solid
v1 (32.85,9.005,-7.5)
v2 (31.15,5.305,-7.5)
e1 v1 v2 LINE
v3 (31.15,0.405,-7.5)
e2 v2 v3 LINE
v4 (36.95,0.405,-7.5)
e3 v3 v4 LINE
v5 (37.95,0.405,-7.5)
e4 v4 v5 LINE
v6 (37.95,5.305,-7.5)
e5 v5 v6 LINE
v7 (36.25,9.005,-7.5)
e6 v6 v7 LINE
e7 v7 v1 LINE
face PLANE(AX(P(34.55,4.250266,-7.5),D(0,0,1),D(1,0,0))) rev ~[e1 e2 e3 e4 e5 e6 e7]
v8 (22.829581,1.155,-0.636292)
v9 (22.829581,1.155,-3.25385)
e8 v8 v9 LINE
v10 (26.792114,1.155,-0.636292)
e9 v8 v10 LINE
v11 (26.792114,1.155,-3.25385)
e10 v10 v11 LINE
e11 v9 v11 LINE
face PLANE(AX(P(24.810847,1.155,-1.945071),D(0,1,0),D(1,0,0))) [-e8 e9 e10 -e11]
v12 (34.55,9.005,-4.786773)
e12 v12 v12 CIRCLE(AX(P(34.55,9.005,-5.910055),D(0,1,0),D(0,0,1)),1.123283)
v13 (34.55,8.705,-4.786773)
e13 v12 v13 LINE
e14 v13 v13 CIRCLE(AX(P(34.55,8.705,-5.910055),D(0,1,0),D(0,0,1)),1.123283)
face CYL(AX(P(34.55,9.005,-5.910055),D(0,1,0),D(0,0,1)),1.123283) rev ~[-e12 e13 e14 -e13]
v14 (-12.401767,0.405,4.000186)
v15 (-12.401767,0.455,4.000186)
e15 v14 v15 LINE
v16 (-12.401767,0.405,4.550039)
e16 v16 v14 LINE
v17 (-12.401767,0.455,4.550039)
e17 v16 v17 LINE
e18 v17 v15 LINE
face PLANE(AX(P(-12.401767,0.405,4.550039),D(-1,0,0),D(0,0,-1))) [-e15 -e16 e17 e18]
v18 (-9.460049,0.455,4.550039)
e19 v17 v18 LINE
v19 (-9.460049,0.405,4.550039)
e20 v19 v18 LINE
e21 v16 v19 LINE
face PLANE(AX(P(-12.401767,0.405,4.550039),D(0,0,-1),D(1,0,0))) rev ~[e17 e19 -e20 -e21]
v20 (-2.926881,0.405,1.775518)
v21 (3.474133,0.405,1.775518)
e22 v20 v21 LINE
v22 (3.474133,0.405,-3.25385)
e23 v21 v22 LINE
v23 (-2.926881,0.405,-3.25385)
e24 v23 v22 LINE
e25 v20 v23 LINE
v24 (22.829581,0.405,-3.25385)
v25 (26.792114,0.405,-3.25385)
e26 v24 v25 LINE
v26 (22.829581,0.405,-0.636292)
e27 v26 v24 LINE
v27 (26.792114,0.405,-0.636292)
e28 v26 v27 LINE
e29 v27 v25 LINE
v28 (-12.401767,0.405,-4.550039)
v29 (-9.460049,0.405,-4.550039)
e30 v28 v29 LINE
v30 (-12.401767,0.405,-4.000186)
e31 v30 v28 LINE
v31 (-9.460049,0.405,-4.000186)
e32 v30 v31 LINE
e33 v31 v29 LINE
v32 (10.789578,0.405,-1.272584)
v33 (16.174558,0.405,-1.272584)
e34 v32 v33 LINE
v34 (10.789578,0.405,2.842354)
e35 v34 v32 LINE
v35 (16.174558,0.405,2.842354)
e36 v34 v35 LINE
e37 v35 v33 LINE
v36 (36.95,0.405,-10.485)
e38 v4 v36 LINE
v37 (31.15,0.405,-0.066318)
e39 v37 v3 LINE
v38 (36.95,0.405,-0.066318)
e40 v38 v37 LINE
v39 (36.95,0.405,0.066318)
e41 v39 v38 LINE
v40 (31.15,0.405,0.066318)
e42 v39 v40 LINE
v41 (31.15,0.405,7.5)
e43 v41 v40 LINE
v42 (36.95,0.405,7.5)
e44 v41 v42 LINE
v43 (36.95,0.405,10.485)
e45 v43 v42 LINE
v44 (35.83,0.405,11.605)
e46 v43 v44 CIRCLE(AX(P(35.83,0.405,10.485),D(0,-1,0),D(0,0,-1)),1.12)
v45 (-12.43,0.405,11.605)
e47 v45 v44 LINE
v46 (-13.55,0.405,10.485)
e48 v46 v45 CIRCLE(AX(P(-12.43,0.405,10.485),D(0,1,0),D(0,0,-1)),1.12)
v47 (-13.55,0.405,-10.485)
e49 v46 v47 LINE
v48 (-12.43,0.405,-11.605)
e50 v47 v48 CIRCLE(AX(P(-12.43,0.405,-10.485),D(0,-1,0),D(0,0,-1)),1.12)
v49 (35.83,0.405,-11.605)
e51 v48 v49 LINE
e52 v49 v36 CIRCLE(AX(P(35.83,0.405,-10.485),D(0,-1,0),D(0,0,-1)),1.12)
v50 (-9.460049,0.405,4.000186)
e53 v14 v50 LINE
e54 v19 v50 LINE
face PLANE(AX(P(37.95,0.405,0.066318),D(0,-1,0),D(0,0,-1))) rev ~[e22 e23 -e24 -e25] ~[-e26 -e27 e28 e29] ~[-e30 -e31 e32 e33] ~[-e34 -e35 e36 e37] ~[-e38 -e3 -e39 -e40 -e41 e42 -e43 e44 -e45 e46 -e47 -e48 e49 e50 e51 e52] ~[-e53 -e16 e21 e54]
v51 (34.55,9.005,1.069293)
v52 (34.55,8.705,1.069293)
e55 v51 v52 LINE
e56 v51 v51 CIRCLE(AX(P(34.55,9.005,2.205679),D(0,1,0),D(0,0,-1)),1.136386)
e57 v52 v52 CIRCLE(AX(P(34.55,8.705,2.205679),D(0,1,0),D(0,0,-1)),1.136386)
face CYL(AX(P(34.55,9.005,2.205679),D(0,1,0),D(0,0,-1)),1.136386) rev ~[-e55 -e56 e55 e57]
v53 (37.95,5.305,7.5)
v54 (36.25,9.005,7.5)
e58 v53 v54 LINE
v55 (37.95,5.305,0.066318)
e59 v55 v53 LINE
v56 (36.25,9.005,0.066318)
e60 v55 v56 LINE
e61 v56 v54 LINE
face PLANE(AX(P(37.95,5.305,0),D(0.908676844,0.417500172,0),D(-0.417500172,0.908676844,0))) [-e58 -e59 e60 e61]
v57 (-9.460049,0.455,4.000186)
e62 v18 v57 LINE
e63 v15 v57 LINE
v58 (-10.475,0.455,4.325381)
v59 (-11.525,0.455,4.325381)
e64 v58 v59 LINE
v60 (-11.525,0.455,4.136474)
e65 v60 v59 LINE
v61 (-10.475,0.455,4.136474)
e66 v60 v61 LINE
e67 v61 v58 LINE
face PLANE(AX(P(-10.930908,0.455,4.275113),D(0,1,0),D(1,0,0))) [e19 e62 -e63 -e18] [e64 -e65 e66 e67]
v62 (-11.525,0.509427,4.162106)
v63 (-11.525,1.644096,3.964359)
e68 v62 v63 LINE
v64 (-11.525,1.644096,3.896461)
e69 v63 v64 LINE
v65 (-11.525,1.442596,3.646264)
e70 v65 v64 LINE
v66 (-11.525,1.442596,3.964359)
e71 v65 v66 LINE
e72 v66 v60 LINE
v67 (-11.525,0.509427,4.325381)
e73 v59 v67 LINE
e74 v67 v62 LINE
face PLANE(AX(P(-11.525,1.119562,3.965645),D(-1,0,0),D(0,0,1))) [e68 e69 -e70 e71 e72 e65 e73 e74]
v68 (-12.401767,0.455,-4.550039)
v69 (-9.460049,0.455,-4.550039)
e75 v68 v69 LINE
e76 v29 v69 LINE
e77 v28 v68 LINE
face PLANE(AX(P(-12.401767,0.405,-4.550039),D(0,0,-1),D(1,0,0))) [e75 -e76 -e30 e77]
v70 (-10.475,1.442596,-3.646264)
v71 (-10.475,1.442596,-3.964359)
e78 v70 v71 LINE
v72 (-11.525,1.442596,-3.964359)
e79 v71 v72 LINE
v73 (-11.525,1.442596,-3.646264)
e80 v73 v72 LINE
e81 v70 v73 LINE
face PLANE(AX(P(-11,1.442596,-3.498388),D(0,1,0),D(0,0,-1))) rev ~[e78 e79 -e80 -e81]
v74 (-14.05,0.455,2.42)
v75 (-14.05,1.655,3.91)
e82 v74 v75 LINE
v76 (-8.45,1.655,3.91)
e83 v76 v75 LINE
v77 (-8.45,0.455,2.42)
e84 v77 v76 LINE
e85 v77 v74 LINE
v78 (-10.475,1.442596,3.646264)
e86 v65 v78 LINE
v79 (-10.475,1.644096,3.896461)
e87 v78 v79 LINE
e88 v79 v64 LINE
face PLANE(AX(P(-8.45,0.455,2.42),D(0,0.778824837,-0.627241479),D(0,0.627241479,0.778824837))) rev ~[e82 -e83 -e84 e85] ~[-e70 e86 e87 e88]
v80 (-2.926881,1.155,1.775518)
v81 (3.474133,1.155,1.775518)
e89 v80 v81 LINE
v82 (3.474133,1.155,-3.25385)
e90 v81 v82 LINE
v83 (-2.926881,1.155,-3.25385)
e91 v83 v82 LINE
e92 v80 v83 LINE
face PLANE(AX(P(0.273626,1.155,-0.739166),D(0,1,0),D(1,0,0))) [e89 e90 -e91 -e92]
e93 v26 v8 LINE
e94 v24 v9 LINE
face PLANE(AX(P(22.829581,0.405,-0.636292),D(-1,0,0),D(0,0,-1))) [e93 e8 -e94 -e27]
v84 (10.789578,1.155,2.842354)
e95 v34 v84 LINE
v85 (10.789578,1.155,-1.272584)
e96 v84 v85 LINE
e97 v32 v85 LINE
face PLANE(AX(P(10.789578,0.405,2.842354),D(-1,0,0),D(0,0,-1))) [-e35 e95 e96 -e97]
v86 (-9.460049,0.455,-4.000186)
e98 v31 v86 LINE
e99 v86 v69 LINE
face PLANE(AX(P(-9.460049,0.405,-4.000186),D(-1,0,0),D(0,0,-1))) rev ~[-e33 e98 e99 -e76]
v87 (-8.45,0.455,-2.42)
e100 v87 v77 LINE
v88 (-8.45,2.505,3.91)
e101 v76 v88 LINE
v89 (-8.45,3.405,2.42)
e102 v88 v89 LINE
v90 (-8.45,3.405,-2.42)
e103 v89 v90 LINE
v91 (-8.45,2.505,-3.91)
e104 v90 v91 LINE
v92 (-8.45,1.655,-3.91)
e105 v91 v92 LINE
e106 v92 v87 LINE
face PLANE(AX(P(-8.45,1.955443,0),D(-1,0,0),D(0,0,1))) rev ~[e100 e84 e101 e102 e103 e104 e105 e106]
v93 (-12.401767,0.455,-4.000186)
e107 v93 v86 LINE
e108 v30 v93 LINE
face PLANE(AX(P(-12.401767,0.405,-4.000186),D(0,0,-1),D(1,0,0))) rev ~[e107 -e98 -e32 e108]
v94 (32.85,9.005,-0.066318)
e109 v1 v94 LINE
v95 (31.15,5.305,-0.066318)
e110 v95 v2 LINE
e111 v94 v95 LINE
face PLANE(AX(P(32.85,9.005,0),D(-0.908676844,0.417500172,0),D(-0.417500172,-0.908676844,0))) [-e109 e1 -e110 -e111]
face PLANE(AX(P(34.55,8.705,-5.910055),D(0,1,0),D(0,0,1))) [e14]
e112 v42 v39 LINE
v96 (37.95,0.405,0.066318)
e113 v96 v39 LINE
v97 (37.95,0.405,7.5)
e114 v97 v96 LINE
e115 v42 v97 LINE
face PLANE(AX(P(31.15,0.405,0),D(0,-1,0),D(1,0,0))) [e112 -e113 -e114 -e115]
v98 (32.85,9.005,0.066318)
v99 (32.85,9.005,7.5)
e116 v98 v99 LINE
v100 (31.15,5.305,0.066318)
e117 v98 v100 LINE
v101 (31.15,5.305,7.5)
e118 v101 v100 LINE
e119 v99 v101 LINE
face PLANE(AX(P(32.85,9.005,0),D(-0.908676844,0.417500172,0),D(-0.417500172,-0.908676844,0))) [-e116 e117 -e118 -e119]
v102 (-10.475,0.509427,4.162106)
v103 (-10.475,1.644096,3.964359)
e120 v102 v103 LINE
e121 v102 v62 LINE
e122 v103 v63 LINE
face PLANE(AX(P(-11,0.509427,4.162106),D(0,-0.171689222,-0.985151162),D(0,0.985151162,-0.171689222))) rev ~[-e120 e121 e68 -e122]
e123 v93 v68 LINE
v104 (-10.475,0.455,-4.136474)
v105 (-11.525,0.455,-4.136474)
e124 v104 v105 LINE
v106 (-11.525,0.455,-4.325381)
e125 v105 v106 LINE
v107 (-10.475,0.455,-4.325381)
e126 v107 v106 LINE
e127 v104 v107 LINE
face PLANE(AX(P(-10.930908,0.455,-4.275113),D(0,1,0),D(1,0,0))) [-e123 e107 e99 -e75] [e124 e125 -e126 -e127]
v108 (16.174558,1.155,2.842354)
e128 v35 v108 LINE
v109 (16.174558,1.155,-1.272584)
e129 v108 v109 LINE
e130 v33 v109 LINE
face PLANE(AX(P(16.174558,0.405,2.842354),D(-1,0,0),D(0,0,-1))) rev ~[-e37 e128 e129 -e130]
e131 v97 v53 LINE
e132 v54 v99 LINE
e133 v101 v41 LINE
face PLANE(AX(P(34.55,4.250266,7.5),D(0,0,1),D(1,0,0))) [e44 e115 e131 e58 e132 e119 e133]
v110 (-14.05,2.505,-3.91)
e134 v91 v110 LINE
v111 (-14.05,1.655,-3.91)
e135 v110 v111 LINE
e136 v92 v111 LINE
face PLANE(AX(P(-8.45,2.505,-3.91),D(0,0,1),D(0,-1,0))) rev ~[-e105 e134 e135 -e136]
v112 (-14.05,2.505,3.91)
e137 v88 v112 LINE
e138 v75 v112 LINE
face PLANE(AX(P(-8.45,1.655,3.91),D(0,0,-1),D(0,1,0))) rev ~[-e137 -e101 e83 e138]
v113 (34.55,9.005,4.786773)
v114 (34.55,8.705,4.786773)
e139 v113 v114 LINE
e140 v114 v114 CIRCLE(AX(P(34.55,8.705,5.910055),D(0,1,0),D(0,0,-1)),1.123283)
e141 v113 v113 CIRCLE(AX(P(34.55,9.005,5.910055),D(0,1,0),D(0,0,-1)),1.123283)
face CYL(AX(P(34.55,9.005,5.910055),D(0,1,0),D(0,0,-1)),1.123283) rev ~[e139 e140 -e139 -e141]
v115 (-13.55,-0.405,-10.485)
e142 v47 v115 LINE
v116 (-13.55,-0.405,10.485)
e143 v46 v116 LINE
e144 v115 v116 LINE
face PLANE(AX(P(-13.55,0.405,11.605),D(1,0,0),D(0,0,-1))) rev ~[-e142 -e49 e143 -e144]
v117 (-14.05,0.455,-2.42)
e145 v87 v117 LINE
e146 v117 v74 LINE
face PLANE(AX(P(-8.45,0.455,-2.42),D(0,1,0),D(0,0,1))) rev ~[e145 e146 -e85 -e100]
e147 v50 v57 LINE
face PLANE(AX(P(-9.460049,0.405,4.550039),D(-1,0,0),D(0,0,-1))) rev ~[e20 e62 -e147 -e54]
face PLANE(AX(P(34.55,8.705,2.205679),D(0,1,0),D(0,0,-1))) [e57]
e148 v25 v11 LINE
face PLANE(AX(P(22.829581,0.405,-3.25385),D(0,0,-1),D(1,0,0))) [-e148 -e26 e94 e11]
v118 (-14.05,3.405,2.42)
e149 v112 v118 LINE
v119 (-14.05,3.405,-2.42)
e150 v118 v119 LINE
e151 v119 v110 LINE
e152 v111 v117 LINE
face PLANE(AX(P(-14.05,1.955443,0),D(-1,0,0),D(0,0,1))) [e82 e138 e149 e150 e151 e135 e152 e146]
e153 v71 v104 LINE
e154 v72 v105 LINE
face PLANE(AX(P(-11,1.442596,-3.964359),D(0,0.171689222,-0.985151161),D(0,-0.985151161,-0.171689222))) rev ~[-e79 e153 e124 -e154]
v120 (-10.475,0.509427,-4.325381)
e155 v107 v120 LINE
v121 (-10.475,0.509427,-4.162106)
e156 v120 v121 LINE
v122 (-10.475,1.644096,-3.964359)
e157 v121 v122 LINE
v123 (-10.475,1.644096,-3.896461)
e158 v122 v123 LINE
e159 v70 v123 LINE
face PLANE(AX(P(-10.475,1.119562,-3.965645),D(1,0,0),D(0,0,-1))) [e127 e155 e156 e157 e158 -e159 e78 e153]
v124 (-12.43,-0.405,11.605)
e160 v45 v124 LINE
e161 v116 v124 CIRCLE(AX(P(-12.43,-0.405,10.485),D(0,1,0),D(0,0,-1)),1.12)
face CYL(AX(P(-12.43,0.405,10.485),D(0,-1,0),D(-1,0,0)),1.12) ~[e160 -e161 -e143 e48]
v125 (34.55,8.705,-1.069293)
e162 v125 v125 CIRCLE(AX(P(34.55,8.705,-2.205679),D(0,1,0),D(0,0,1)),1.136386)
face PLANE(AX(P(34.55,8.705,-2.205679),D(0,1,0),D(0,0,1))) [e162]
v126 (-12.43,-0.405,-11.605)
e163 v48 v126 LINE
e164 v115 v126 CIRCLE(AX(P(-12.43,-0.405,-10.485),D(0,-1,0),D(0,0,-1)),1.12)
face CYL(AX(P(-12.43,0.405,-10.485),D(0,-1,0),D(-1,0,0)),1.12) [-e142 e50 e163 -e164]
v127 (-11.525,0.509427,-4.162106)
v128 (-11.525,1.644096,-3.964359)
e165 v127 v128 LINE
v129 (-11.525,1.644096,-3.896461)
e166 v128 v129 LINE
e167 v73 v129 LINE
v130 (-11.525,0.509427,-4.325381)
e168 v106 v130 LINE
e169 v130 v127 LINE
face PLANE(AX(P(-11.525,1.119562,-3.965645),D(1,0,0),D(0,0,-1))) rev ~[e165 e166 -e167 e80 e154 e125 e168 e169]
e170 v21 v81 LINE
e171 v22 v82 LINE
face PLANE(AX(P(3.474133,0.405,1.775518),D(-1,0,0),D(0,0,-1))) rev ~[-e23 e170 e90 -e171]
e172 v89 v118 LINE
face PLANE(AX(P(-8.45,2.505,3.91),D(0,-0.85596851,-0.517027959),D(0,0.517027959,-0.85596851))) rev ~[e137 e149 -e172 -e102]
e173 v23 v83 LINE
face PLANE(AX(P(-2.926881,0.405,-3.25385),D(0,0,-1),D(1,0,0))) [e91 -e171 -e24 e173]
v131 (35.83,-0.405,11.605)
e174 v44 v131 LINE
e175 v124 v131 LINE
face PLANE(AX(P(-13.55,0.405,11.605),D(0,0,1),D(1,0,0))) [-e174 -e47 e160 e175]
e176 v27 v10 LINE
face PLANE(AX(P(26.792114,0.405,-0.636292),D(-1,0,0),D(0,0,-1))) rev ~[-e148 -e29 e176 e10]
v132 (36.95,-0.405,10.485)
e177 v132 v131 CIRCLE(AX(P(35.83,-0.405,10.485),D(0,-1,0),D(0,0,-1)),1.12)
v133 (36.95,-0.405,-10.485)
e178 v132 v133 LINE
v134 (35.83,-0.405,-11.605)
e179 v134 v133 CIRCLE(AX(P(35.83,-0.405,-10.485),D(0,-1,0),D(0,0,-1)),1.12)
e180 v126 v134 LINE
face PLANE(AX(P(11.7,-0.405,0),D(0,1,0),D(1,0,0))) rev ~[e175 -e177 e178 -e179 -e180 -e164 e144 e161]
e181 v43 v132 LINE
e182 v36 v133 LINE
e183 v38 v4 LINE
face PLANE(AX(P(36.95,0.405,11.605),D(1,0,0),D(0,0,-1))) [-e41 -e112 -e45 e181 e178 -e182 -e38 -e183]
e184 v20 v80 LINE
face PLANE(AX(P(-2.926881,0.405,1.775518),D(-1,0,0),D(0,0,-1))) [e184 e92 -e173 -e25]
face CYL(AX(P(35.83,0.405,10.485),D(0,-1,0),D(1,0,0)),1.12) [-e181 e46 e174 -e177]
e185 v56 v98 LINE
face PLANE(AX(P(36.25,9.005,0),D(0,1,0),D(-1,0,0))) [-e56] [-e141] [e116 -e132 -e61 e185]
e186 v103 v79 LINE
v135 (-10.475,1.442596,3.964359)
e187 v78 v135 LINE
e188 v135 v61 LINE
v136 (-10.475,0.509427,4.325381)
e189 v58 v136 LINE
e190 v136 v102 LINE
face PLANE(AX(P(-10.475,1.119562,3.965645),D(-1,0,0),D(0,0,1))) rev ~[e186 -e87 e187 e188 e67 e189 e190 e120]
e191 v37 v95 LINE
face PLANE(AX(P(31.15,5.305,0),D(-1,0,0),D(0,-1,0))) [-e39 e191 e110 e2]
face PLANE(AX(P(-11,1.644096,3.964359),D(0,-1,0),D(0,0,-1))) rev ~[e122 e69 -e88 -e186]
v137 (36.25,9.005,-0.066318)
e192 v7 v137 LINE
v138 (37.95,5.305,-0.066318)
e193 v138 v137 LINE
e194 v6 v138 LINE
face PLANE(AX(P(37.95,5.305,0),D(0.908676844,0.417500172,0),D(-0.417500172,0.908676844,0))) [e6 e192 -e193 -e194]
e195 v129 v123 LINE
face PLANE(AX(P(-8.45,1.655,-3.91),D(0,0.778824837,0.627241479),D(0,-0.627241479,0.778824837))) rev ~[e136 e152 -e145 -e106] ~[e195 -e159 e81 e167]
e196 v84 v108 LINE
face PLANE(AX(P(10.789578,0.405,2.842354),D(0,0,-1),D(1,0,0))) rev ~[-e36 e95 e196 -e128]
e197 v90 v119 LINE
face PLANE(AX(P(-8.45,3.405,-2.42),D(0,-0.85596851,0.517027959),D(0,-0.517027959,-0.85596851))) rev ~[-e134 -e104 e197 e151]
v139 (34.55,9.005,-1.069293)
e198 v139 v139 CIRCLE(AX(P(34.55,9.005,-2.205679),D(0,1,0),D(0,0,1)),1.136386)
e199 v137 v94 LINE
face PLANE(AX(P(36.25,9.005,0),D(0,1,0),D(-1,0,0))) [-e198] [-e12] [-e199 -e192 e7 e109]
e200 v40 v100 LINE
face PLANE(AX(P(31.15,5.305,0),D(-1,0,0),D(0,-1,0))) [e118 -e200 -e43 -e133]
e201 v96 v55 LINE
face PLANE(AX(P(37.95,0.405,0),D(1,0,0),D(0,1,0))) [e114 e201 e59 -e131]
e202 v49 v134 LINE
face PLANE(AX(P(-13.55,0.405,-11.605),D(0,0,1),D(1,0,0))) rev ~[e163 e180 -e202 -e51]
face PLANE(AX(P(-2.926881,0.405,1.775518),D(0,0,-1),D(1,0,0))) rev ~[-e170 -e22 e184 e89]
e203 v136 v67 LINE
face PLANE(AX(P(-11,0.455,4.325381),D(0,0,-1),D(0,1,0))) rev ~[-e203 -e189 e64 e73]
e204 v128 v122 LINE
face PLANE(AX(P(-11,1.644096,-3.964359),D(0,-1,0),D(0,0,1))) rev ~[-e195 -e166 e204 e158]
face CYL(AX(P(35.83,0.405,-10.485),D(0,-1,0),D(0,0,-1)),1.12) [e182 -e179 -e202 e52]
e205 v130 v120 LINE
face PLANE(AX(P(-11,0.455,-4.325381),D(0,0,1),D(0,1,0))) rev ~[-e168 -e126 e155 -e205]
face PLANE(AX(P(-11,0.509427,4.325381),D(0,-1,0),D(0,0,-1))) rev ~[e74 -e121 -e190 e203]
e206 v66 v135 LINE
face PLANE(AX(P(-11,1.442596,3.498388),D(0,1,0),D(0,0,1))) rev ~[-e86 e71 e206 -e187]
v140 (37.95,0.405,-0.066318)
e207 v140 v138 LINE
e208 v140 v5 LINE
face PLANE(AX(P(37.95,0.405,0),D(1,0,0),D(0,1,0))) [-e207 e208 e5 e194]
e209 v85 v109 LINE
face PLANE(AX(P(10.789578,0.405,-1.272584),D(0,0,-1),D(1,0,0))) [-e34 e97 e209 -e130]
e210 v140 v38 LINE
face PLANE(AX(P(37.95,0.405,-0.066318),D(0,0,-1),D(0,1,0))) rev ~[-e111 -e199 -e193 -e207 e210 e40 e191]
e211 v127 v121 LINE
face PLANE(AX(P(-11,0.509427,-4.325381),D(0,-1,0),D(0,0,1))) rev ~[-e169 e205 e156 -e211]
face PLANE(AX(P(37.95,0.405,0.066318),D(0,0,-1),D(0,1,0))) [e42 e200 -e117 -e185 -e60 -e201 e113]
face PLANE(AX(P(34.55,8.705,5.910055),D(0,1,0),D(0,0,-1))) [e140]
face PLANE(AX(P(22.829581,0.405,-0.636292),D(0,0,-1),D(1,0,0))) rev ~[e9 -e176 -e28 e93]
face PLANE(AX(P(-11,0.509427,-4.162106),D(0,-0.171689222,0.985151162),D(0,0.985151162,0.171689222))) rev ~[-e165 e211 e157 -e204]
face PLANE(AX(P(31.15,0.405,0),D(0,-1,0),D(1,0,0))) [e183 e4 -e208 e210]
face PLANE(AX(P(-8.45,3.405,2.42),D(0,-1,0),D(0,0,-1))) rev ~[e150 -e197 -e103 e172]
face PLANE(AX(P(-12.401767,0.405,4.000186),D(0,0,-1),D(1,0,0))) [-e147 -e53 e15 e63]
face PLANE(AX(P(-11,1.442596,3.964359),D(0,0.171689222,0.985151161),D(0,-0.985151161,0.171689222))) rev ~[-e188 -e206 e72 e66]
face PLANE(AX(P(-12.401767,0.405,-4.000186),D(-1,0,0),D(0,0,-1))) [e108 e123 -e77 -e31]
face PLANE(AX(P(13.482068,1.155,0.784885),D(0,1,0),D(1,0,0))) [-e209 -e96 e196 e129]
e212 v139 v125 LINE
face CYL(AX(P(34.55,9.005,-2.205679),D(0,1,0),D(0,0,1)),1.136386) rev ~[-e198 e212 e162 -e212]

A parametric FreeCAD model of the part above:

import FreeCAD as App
import Part
import Sketcher
Q = App.Units.Quantity


def edges_at(feature, points):
    """Names of the edges that pass closest to the given points."""
    edges = feature.Shape.Edges
    near = lambda p: min(range(len(edges)), key=lambda i: edges[i].distToShape(Part.Vertex(*p))[0])
    return sorted({f"Edge{near(p) + 1}" for p in points})


def add_polygon(sketch, points):
    """Adds a closed chain of lines whose ends are joined by coincident constraints."""
    first, n = sketch.GeometryCount, len(points)
    for a, b in zip(points, points[1:] + points[:1]):
        sketch.addGeometry(Part.LineSegment(App.Vector(*a, 0), App.Vector(*b, 0)), False)
    for i in range(n):
        sketch.addConstraint(Sketcher.Constraint("Coincident", first + i, 2, first + (i + 1) % n, 1))

doc = App.newDocument("Part")
params = doc.addObject("Spreadsheet::Sheet", "Params")
for row, (alias, value) in enumerate([
    ("sketch1_width", "25.38 mm"),
    ("sketch1_height", "15.27 mm"),
    ("sketch1_height2", "3.96 mm"),
    ("sketch1_height3", "4.59 mm"),
    ("pad1_length", "0.81 mm"),
    ("fillet_radius", "1.12 mm"),
    ("chamfer_size", "0.5 mm"),
    ("sketch2_diameter", "2.2 mm"),
    ("pad2_length", "0.05 mm"),
    ("sketch4_width", "0.85 mm"),
    ("sketch4_height", "4.84 mm"),
    ("pad3_length", "0.5 mm"),
    ("pad3_length2", "5.1 mm"),
    ("pad4_length", "1.05 mm"),
    ("sketch7_width", "50.5 mm"),
    ("sketch7_height", "23.21 mm"),
    ("pad5_length", "0.81 mm"),
    ("fillet2_radius", "1.12 mm"),
    ("pad6_length", "0.75 mm"),
    ("sketch9_width", "3.4 mm"),
    ("sketch9_width2", "6.8 mm"),
    ("sketch9_height", "4.9 mm"),
    ("pad7_length", "15 mm"),
    ("pocket3_length", "6.8 mm"),
    ("pocket4_length", "0.3 mm"),
], start=1):
    params.set(f"A{row}", alias)
    params.set(f"B{row}", "=" + value)
    params.setAlias(f"B{row}", alias)

body = doc.addObject("PartDesign::Body", "Body")

# Sketch on XZ plane
sketch1 = body.newObject("Sketcher::SketchObject", "Sketch")
sketch1.AttachmentSupport = (doc.getObject("XZ_Plane"), [""])
sketch1.MapMode = "FlatFace"
add_polygon(sketch1, [(11.8, -7.6), (-13.6, -7.6), (-13.6, 7.6), (11.8, 7.6), (11.8, 3.7), (13.6, 2.3), (13.6, -2.3), (11.8, -3.7)])  # lines 0-7
sketch1.addConstraint([
    Sketcher.Constraint("Horizontal", 0),
    Sketcher.Constraint("Vertical", 1),
    Sketcher.Constraint("Horizontal", 2),
    Sketcher.Constraint("Vertical", 3),
    Sketcher.Constraint("Vertical", 5),
    Sketcher.Constraint("Vertical", 7),
    Sketcher.Constraint("Symmetric", 3, 2, 6, 2, -1),
    Sketcher.Constraint("Equal", 3, 7),
    Sketcher.Constraint("Equal", 4, 6),
    Sketcher.Constraint("DistanceX", 0, 2, 0, 1, Q("25.38 mm")),
    Sketcher.Constraint("DistanceY", 1, 1, 1, 2, Q("15.27 mm")),
    Sketcher.Constraint("DistanceY", 3, 2, 3, 1, Q("3.96 mm")),
    Sketcher.Constraint("DistanceY", 5, 2, 5, 1, Q("4.59 mm")),
    Sketcher.Constraint("DistanceX", 1, 2, 4, 2, Q("27.1 mm")),
    Sketcher.Constraint("DistanceX", 0, 2, -1, 1, Q("13.55 mm")),
])
sketch1.setExpression("Constraints[17]", "Params.sketch1_width")
sketch1.setExpression("Constraints[18]", "Params.sketch1_height")
sketch1.setExpression("Constraints[19]", "Params.sketch1_height2")
sketch1.setExpression("Constraints[20]", "Params.sketch1_height3")
pad1 = body.newObject("PartDesign::Pad", "Pad")
pad1.Profile = sketch1
pad1.setExpression("Length", "Params.pad1_length")
pad1.Midplane = True
doc.recompute()

fillet = body.newObject("PartDesign::Fillet", "Fillet")
fillet.Base = (pad1, edges_at(pad1, [(-13.55, 0, -7.635), (-13.55, 0, 7.635)]))
fillet.setExpression("Radius", "Params.fillet_radius")
doc.recompute()

chamfer = body.newObject("PartDesign::Chamfer", "Chamfer")
chamfer.Base = (fillet, edges_at(fillet, [(11.83, 0, -7.635), (11.83, 0, 7.635)]))
chamfer.setExpression("Size", "Params.chamfer_size")

# Sketch on XZ plane
sketch2 = body.newObject("Sketcher::SketchObject", "Sketch001")
sketch2.AttachmentSupport = (doc.getObject("XZ_Plane"), [""])
sketch2.MapMode = "FlatFace"
sketch2.AttachmentOffset = App.Placement(App.Vector(0, 0, -0.405), App.Rotation())
sketch2.addGeometry([
    Part.Circle(App.Vector(9.6, -5.7, 0), App.Vector(0, 0, 1), 1.1),
    Part.Circle(App.Vector(9.6, 5.7, 0), App.Vector(0, 0, 1), 1.1),
], False)
sketch2.addConstraint([
    Sketcher.Constraint("Equal", 0, 1),
    Sketcher.Constraint("Symmetric", 0, 3, 1, 3, -1),
    Sketcher.Constraint("Diameter", 0, Q("2.2 mm")),
    Sketcher.Constraint("DistanceX", -1, 1, 0, 3, Q("9.57 mm")),
    Sketcher.Constraint("DistanceY", 0, 3, -1, 1, Q("5.74 mm")),
])
sketch2.setExpression("Constraints[2]", "Params.sketch2_diameter")
pocket1 = body.newObject("PartDesign::Pocket", "Pocket")
pocket1.Profile = sketch2
pocket1.Type = "ThroughAll"
pocket1.Reversed = True

# Sketch on XZ plane
sketch3 = body.newObject("Sketcher::SketchObject", "Sketch002")
sketch3.AttachmentSupport = (doc.getObject("XZ_Plane"), [""])
sketch3.MapMode = "FlatFace"
sketch3.AttachmentOffset = App.Placement(App.Vector(0, 0, -0.405), App.Rotation())
add_polygon(sketch3, [(-12.4, -4.6), (-12.4, -4), (-9.5, -4), (-9.5, -4.6)])  # lines 0-3
add_polygon(sketch3, [(-12.4, 4), (-12.4, 4.6), (-9.5, 4.6), (-9.5, 4)])  # lines 4-7
sketch3.addConstraint([
    Sketcher.Constraint("Vertical", 0),
    Sketcher.Constraint("Horizontal", 1),
    Sketcher.Constraint("Vertical", 2),
    Sketcher.Constraint("Horizontal", 3),
    Sketcher.Constraint("Vertical", 4),
    Sketcher.Constraint("Horizontal", 5),
    Sketcher.Constraint("Vertical", 6),
    Sketcher.Constraint("Horizontal", 7),
    Sketcher.Constraint("Symmetric", 3, 2, 4, 2, -1),
    Sketcher.Constraint("Symmetric", 1, 2, 6, 2, -1),
    Sketcher.Constraint("DistanceX", 1, 1, 1, 2, Q("2.941717 mm")),
    Sketcher.Constraint("DistanceY", 0, 1, 0, 2, Q("0.549854 mm")),
    Sketcher.Constraint("DistanceX", 1, 2, -1, 1, Q("9.460049 mm")),
    Sketcher.Constraint("DistanceY", 2, 2, -1, 1, Q("4.550039 mm")),
])
pad2 = body.newObject("PartDesign::Pad", "Pad001")
pad2.Profile = sketch3
pad2.setExpression("Length", "Params.pad2_length")
pad2.Reversed = True
body2 = doc.addObject("PartDesign::Body", "Body001")

# Sketch on YZ plane
sketch4 = body2.newObject("Sketcher::SketchObject", "Sketch003")
sketch4.AttachmentSupport = (doc.getObject("YZ_Plane001"), [""])
sketch4.MapMode = "FlatFace"
sketch4.AttachmentOffset = App.Placement(App.Vector(0, 0, -13.55), App.Rotation())
add_polygon(sketch4, [(1.7, -3.9), (0.5, -2.4), (0.5, 2.4), (1.7, 3.9), (2.5, 3.9), (3.4, 2.4), (3.4, -2.4), (2.5, -3.9)])  # lines 0-7
sketch4.addConstraint([
    Sketcher.Constraint("Vertical", 1),
    Sketcher.Constraint("Horizontal", 3),
    Sketcher.Constraint("Vertical", 5),
    Sketcher.Constraint("Horizontal", 7),
    Sketcher.Constraint("Symmetric", 3, 2, 6, 2, -1),
    Sketcher.Constraint("Horizontal", 1, 2, 4, 2),
    Sketcher.Constraint("Horizontal", 0, 2, 5, 2),
    Sketcher.Constraint("Vertical", 2, 2, 7, 2),
    Sketcher.Constraint("Equal", 0, 2),
    Sketcher.Constraint("DistanceX", 3, 1, 3, 2, Q("0.85 mm")),
    Sketcher.Constraint("DistanceY", 1, 1, 1, 2, Q("4.84 mm")),
    Sketcher.Constraint("DistanceX", 1, 2, 2, 2, Q("1.2 mm")),
    Sketcher.Constraint("DistanceX", 3, 2, 4, 2, Q("0.9 mm")),
    Sketcher.Constraint("DistanceY", -1, 1, 2, 2, Q("3.91 mm")),
    Sketcher.Constraint("DistanceX", -1, 1, 0, 2, Q("0.455 mm")),
])
sketch4.setExpression("Constraints[17]", "Params.sketch4_width")
sketch4.setExpression("Constraints[18]", "Params.sketch4_height")
pad3 = body2.newObject("PartDesign::Pad", "Pad002")
pad3.Profile = sketch4
pad3.Type = "TwoLengths"
pad3.setExpression("Length", "Params.pad3_length")
pad3.setExpression("Length2", "Params.pad3_length2")
pad3.Reversed = True
body.AllowCompound = True
doc.recompute()

boolean = body.newObject("PartDesign::Boolean", "Boolean")
boolean.Type = "Fuse"
boolean.addObjects([body2])

# Sketch on YZ plane
sketch5 = body.newObject("Sketcher::SketchObject", "Sketch004")
sketch5.AttachmentSupport = (doc.getObject("YZ_Plane"), [""])
sketch5.MapMode = "FlatFace"
sketch5.AttachmentOffset = App.Placement(App.Vector(0, 0, -11), App.Rotation())
add_polygon(sketch5, [(0.46, -4.33), (0.51, -4.33), (0.51, -4.16), (1.64, -3.96), (1.64, -3.5), (1.44, -3.5), (1.44, -3.96), (0.46, -4.14)])  # lines 0-7
add_polygon(sketch5, [(0.46, 4.33), (0.46, 4.14), (1.44, 3.96), (1.44, 3.5), (1.64, 3.5), (1.64, 3.96), (0.51, 4.16), (0.51, 4.33)])  # lines 8-15
sketch5.addConstraint([
    Sketcher.Constraint("Horizontal", 0),
    Sketcher.Constraint("Vertical", 1),
    Sketcher.Constraint("Vertical", 3),
    Sketcher.Constraint("Horizontal", 4),
    Sketcher.Constraint("Vertical", 5),
    Sketcher.Constraint("Vertical", 7),
    Sketcher.Constraint("Vertical", 8),
    Sketcher.Constraint("Vertical", 10),
    Sketcher.Constraint("Horizontal", 11),
    Sketcher.Constraint("Vertical", 12),
    Sketcher.Constraint("Vertical", 14),
    Sketcher.Constraint("Horizontal", 15),
    Sketcher.Constraint("Symmetric", 6, 2, 8, 2, -1),
    Sketcher.Constraint("Symmetric", 5, 2, 9, 2, -1),
    Sketcher.Constraint("Symmetric", 3, 2, 11, 2, -1),
    Sketcher.Constraint("Symmetric", 1, 2, 13, 2, -1),
    Sketcher.Constraint("Parallel", 2, 6),
    Sketcher.Constraint("Parallel", 9, 13),
    Sketcher.Constraint("Horizontal", 2, 2, 5, 2),
    Sketcher.Constraint("Equal", 7, 8),
    Sketcher.Constraint("DistanceX", 4, 2, 4, 1, Q("0.201501 mm")),
    Sketcher.Constraint("DistanceX", -1, 1, 6, 2, Q("0.455 mm")),
    Sketcher.Constraint("DistanceY", 3, 1, 3, 2, Q("0.46597 mm")),
    Sketcher.Constraint("Distance", 6, Q("1.002481 mm")),
    Sketcher.Constraint("DistanceX", 0, 1, 0, 2, Q("0.054427 mm")),
    Sketcher.Constraint("DistanceY", 1, 1, 1, 2, Q("0.163275 mm")),
    Sketcher.Constraint("DistanceY", 7, 2, 7, 1, Q("0.188907 mm")),
    Sketcher.Constraint("DistanceY", 0, 2, -1, 1, Q("4.325381 mm")),
])
pad4 = body.newObject("PartDesign::Pad", "Pad003")
pad4.Profile = sketch5
pad4.setExpression("Length", "Params.pad4_length")
pad4.Midplane = True

# Sketch on XZ plane
sketch6 = body.newObject("Sketcher::SketchObject", "Sketch005")
sketch6.AttachmentSupport = (doc.getObject("XZ_Plane"), [""])
sketch6.MapMode = "FlatFace"
sketch6.AttachmentOffset = App.Placement(App.Vector(0, 0, -0.405), App.Rotation())
sketch6.addGeometry([
    Part.Circle(App.Vector(-6, -5.9, 0), App.Vector(0, 0, 1), 0.6),  # 0
    Part.Circle(App.Vector(-3.5, -5.9, 0), App.Vector(0, 0, 1), 0.6),  # 1
    Part.Circle(App.Vector(-1, -5.9, 0), App.Vector(0, 0, 1), 0.6),  # 2
    Part.Circle(App.Vector(1.5, -5.9, 0), App.Vector(0, 0, 1), 0.6),  # 3
    Part.Circle(App.Vector(4, -5.9, 0), App.Vector(0, 0, 1), 0.6),  # 4
    Part.Circle(App.Vector(4, 5.9, 0), App.Vector(0, 0, 1), 0.6),  # 5
    Part.Circle(App.Vector(1.5, 5.9, 0), App.Vector(0, 0, 1), 0.6),  # 6
    Part.Circle(App.Vector(-1, 5.9, 0), App.Vector(0, 0, 1), 0.6),  # 7
    Part.Circle(App.Vector(-3.5, 5.9, 0), App.Vector(0, 0, 1), 0.6),  # 8
    Part.Circle(App.Vector(-6, 5.9, 0), App.Vector(0, 0, 1), 0.6),  # 9
], False)
sketch6.addConstraint([
    Sketcher.Constraint("Equal", 0, 1),
    Sketcher.Constraint("Equal", 1, 2),
    Sketcher.Constraint("Equal", 2, 3),
    Sketcher.Constraint("Equal", 3, 4),
    Sketcher.Constraint("Equal", 4, 5),
    Sketcher.Constraint("Equal", 5, 6),
    Sketcher.Constraint("Equal", 6, 7),
    Sketcher.Constraint("Equal", 7, 8),
    Sketcher.Constraint("Equal", 8, 9),
    Sketcher.Constraint("Symmetric", 4, 3, 5, 3, -1),
    Sketcher.Constraint("Symmetric", 3, 3, 6, 3, -1),
    Sketcher.Constraint("Symmetric", 2, 3, 7, 3, -1),
    Sketcher.Constraint("Symmetric", 1, 3, 8, 3, -1),
    Sketcher.Constraint("Symmetric", 0, 3, 9, 3, -1),
    Sketcher.Constraint("Horizontal", 0, 3, 1, 3),
    Sketcher.Constraint("Horizontal", 1, 3, 2, 3),
    Sketcher.Constraint("Horizontal", 2, 3, 3, 3),
    Sketcher.Constraint("Horizontal", 3, 3, 4, 3),
    Sketcher.Constraint("DistanceX", 0, 3, 2, 3, Q("5 mm")),
    Sketcher.Constraint("DistanceX", 1, 3, 3, 3, Q("5 mm")),
    Sketcher.Constraint("DistanceX", 2, 3, 4, 3, Q("5 mm")),
    Sketcher.Constraint("Diameter", 0, Q("1.155299 mm")),
    Sketcher.Constraint("DistanceX", 0, 3, 1, 3, Q("2.5 mm")),
    Sketcher.Constraint("DistanceY", 0, 3, -1, 1, Q("5.913658 mm")),
    Sketcher.Constraint("DistanceX", 0, 3, -1, 1, Q("5.985172 mm")),
])
pocket2 = body.newObject("PartDesign::Pocket", "Pocket001")
pocket2.Profile = sketch6
pocket2.Type = "ThroughAll"
pocket2.Reversed = True

# Sketch on XZ plane
sketch7 = body.newObject("Sketcher::SketchObject", "Sketch006")
sketch7.AttachmentSupport = (doc.getObject("XZ_Plane"), [""])
sketch7.MapMode = "FlatFace"
sketch7.AttachmentOffset = App.Placement(App.Vector(0, 0, -0.405), App.Rotation())
add_polygon(sketch7, [(-14, -12), (-14, 12), (37, 12), (37, -12)])  # lines 0-3
sketch7.addConstraint([
    Sketcher.Constraint("Vertical", 0),
    Sketcher.Constraint("Horizontal", 1),
    Sketcher.Constraint("Vertical", 2),
    Sketcher.Constraint("Horizontal", 3),
    Sketcher.Constraint("DistanceX", 1, 1, 1, 2, Q("50.5 mm")),
    Sketcher.Constraint("DistanceY", 0, 1, 0, 2, Q("23.21 mm")),
    Sketcher.Constraint("DistanceX", 0, 2, -1, 1, Q("13.55 mm")),
    Sketcher.Constraint("DistanceY", -1, 1, 0, 2, Q("11.605 mm")),
])
sketch7.setExpression("Constraints[8]", "Params.sketch7_width")
sketch7.setExpression("Constraints[9]", "Params.sketch7_height")
pad5 = body.newObject("PartDesign::Pad", "Pad004")
pad5.Profile = sketch7
pad5.setExpression("Length", "Params.pad5_length")
doc.recompute()

fillet2 = body.newObject("PartDesign::Fillet", "Fillet001")
fillet2.Base = (pad5, edges_at(pad5, [
    (-13.55, 0, 11.605),
    (-13.55, 0, -11.605),
    (36.95, 0, -11.605),
    (36.95, 0, 11.605),
]))
fillet2.setExpression("Radius", "Params.fillet2_radius")

# Sketch on XZ plane
sketch8 = body.newObject("Sketcher::SketchObject", "Sketch007")
sketch8.AttachmentSupport = (doc.getObject("XZ_Plane"), [""])
sketch8.MapMode = "FlatFace"
sketch8.AttachmentOffset = App.Placement(App.Vector(0, 0, -0.405), App.Rotation())
add_polygon(sketch8, [(-2.9, -3.3), (-2.9, 1.8), (3.5, 1.8), (3.5, -3.3)])  # lines 0-3
add_polygon(sketch8, [(10.8, -1.3), (10.8, 2.8), (16.2, 2.8), (16.2, -1.3)])  # lines 4-7
add_polygon(sketch8, [(22.8, -3.3), (22.8, -0.6), (26.8, -0.6), (26.8, -3.3)])  # lines 8-11
sketch8.addConstraint([
    Sketcher.Constraint("Vertical", 0),
    Sketcher.Constraint("Horizontal", 1),
    Sketcher.Constraint("Vertical", 2),
    Sketcher.Constraint("Horizontal", 3),
    Sketcher.Constraint("Vertical", 4),
    Sketcher.Constraint("Horizontal", 5),
    Sketcher.Constraint("Vertical", 6),
    Sketcher.Constraint("Horizontal", 7),
    Sketcher.Constraint("Vertical", 8),
    Sketcher.Constraint("Horizontal", 9),
    Sketcher.Constraint("Vertical", 10),
    Sketcher.Constraint("Horizontal", 11),
    Sketcher.Constraint("Horizontal", 3, 2, 10, 2),
    Sketcher.Constraint("DistanceX", 5, 1, 5, 2, Q("5.38498 mm")),
    Sketcher.Constraint("DistanceY", 0, 1, 0, 2, Q("5.029368 mm")),
    Sketcher.Constraint("DistanceY", 8, 1, 8, 2, Q("2.617558 mm")),
    Sketcher.Constraint("DistanceX", 1, 1, 1, 2, Q("6.401014 mm")),
    Sketcher.Constraint("DistanceX", 9, 1, 9, 2, Q("3.962533 mm")),
    Sketcher.Constraint("DistanceY", 4, 1, 4, 2, Q("4.114938 mm")),
    Sketcher.Constraint("DistanceX", 0, 2, -1, 1, Q("2.926881 mm")),
    Sketcher.Constraint("DistanceY", 2, 2, -1, 1, Q("3.25385 mm")),
    Sketcher.Constraint("DistanceX", -1, 1, 5, 2, Q("16.174558 mm")),
    Sketcher.Constraint("DistanceX", -1, 1, 8, 2, Q("22.829581 mm")),
    Sketcher.Constraint("DistanceY", -1, 1, 4, 2, Q("2.842354 mm")),
])
pad6 = body.newObject("PartDesign::Pad", "Pad005")
pad6.Profile = sketch8
pad6.setExpression("Length", "Params.pad6_length")
pad6.Reversed = True

# Sketch on XY plane
sketch9 = body.newObject("Sketcher::SketchObject", "Sketch008")
sketch9.AttachmentSupport = (doc.getObject("XY_Plane"), [""])
sketch9.MapMode = "FlatFace"
add_polygon(sketch9, [(38, 0.4), (38, 5.3), (36.2, 9), (32.9, 9), (31.1, 5.3), (31.1, 0.4)])  # lines 0-5
sketch9.addConstraint([
    Sketcher.Constraint("Vertical", 0),
    Sketcher.Constraint("Horizontal", 2),
    Sketcher.Constraint("Vertical", 4),
    Sketcher.Constraint("Horizontal", 5),
    Sketcher.Constraint("Horizontal", 0, 2, 3, 2),
    Sketcher.Constraint("Equal", 1, 3),
    Sketcher.Constraint("DistanceX", 2, 2, 2, 1, Q("3.4 mm")),
    Sketcher.Constraint("DistanceX", 5, 1, 5, 2, Q("6.8 mm")),
    Sketcher.Constraint("DistanceY", 0, 1, 0, 2, Q("4.9 mm")),
    Sketcher.Constraint("DistanceY", 0, 2, 1, 2, Q("3.7 mm")),
    Sketcher.Constraint("DistanceX", -1, 1, 0, 2, Q("37.95 mm")),
    Sketcher.Constraint("DistanceY", -1, 1, 0, 2, Q("5.305 mm")),
])
sketch9.setExpression("Constraints[12]", "Params.sketch9_width")
sketch9.setExpression("Constraints[13]", "Params.sketch9_width2")
sketch9.setExpression("Constraints[14]", "Params.sketch9_height")
pad7 = body.newObject("PartDesign::Pad", "Pad006")
pad7.Profile = sketch9
pad7.setExpression("Length", "Params.pad7_length")
pad7.Midplane = True

# Sketch on YZ plane
sketch10 = body.newObject("Sketcher::SketchObject", "Sketch009")
sketch10.AttachmentSupport = (doc.getObject("YZ_Plane"), [""])
sketch10.MapMode = "FlatFace"
sketch10.AttachmentOffset = App.Placement(App.Vector(0, 0, 37.95), App.Rotation())
add_polygon(sketch10, [(11.48, 0.07), (0.4, 0.07), (0.4, -0.07), (11.48, -0.07)])  # lines 0-3
sketch10.addConstraint([
    Sketcher.Constraint("Horizontal", 0),
    Sketcher.Constraint("Vertical", 1),
    Sketcher.Constraint("Horizontal", 2),
    Sketcher.Constraint("Vertical", 3),
    Sketcher.Constraint("DistanceX", -1, 1, 0, 2, Q("0.405 mm")),
    Sketcher.Constraint("DistanceX", 0, 2, 0, 1, Q("11.074362 mm")),
    Sketcher.Constraint("DistanceY", 1, 2, 1, 1, Q("0.132636 mm")),
    Sketcher.Constraint("DistanceY", -1, 1, 0, 2, Q("0.066318 mm")),
])
pocket3 = body.newObject("PartDesign::Pocket", "Pocket002")
pocket3.Profile = sketch10
pocket3.setExpression("Length", "Params.pocket3_length")

# Sketch on XZ plane
sketch11 = body.newObject("Sketcher::SketchObject", "Sketch010")
sketch11.AttachmentSupport = (doc.getObject("XZ_Plane"), [""])
sketch11.MapMode = "FlatFace"
sketch11.AttachmentOffset = App.Placement(App.Vector(0, 0, -9.005), App.Rotation())
sketch11.addGeometry([
    Part.Circle(App.Vector(34.5, -5.9, 0), App.Vector(0, 0, 1), 1.1),
    Part.Circle(App.Vector(34.5, -2.2, 0), App.Vector(0, 0, 1), 1.1),
    Part.Circle(App.Vector(34.5, 2.2, 0), App.Vector(0, 0, 1), 1.1),
    Part.Circle(App.Vector(34.5, 5.9, 0), App.Vector(0, 0, 1), 1.1),
], False)
sketch11.addConstraint([
    Sketcher.Constraint("Equal", 1, 2),
    Sketcher.Constraint("Equal", 0, 3),
    Sketcher.Constraint("Symmetric", 1, 3, 2, 3, -1),
    Sketcher.Constraint("Symmetric", 0, 3, 3, 3, -1),
    Sketcher.Constraint("Vertical", 0, 3, 1, 3),
    Sketcher.Constraint("DistanceX", -1, 1, 0, 3, Q("34.55 mm")),
    Sketcher.Constraint("Diameter", 0, Q("2.246565 mm")),
    Sketcher.Constraint("Diameter", 1, Q("2.272773 mm")),
    Sketcher.Constraint("DistanceY", 1, 3, -1, 1, Q("2.205679 mm")),
    Sketcher.Constraint("DistanceY", 0, 3, 3, 3, Q("11.82011 mm")),
])
pocket4 = body.newObject("PartDesign::Pocket", "Pocket003")
pocket4.Profile = sketch11
pocket4.setExpression("Length", "Params.pocket4_length")
pocket4.Reversed = True

doc.recompute()
